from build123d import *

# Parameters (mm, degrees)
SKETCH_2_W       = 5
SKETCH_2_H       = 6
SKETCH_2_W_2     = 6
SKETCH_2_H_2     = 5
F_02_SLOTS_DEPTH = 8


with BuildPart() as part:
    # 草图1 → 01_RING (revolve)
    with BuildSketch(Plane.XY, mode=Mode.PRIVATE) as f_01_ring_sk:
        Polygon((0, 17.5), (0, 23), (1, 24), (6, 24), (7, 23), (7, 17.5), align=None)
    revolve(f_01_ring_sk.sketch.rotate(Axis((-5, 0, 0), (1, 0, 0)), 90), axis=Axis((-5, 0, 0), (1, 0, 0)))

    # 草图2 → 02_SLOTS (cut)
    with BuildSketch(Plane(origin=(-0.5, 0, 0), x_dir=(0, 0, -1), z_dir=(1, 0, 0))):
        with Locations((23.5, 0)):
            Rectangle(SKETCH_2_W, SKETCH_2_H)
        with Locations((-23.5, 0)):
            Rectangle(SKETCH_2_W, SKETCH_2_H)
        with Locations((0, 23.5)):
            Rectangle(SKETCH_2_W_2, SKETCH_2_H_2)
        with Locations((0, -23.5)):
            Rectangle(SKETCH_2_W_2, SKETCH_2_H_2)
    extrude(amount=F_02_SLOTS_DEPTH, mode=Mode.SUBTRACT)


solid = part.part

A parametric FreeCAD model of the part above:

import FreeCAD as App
import Part
import Sketcher

doc = App.newDocument("Part")
body = doc.addObject("PartDesign::Body", "Body")

# Sketch on XY plane
sketch1 = doc.addObject("Sketcher::SketchObject", "Sketch")
body.addObject(sketch1)
sketch1.AttachmentSupport = (doc.XY_Plane, [""])
sketch1.MapMode = "FlatFace"
sketch1.addGeometry(Part.LineSegment(App.Vector(0, 23, 0), App.Vector(0, 17.5, 0)), False)
sketch1.addGeometry(Part.LineSegment(App.Vector(0, 17.5, 0), App.Vector(7, 17.5, 0)), False)
sketch1.addGeometry(Part.LineSegment(App.Vector(7, 17.5, 0), App.Vector(7, 23, 0)), False)
sketch1.addGeometry(Part.LineSegment(App.Vector(7, 23, 0), App.Vector(6, 24, 0)), False)
sketch1.addGeometry(Part.LineSegment(App.Vector(6, 24, 0), App.Vector(1, 24, 0)), False)
sketch1.addGeometry(Part.LineSegment(App.Vector(1, 24, 0), App.Vector(0, 23, 0)), False)
sketch1.addConstraint(Sketcher.Constraint("Coincident", 0, 2, 1, 1))
sketch1.addConstraint(Sketcher.Constraint("Coincident", 1, 2, 2, 1))
sketch1.addConstraint(Sketcher.Constraint("Coincident", 2, 2, 3, 1))
sketch1.addConstraint(Sketcher.Constraint("Coincident", 3, 2, 4, 1))
sketch1.addConstraint(Sketcher.Constraint("Coincident", 4, 2, 5, 1))
sketch1.addConstraint(Sketcher.Constraint("Coincident", 5, 2, 0, 1))
sketch1.addConstraint(Sketcher.Constraint("Vertical", 0))
sketch1.addConstraint(Sketcher.Constraint("Horizontal", 1))
sketch1.addConstraint(Sketcher.Constraint("Vertical", 2))
sketch1.addConstraint(Sketcher.Constraint("Horizontal", 4))
sketch1.addConstraint(Sketcher.Constraint("PointOnObject", 0, 2, -2))
sketch1.addConstraint(Sketcher.Constraint("Perpendicular", 3, 5))
sketch1.addConstraint(Sketcher.Constraint("Horizontal", 2, 2, 5, 2))
sketch1.addConstraint(Sketcher.Constraint("Equal", 3, 5))
sketch1.addConstraint(Sketcher.Constraint("DistanceX", 1, 1, 1, 2, 7.0))
sketch1.addConstraint(Sketcher.Constraint("DistanceX", 4, 2, 4, 1, 5.0))
sketch1.addConstraint(Sketcher.Constraint("DistanceY", 0, 2, 0, 1, 5.5))
sketch1.addConstraint(Sketcher.Constraint("DistanceY", -1, 1, 2, 2, 23.0))
revolution = doc.addObject("PartDesign::Revolution", "Revolution")
body.addObject(revolution)
revolution.Profile = sketch1
revolution.ReferenceAxis = (sketch1, ["H_Axis"])
revolution.Angle = 360

# Sketch on YZ plane
sketch2 = doc.addObject("Sketcher::SketchObject", "Sketch001")
body.addObject(sketch2)
sketch2.AttachmentSupport = (doc.YZ_Plane, [""])
sketch2.MapMode = "FlatFace"
sketch2.AttachmentOffset = App.Placement(App.Vector(0, 0, -0.5), App.Rotation())
sketch2.addGeometry(Part.LineSegment(App.Vector(3, -21, 0), App.Vector(-3, -21, 0)), False)
sketch2.addGeometry(Part.LineSegment(App.Vector(-3, -21, 0), App.Vector(-3, -26, 0)), False)
sketch2.addGeometry(Part.LineSegment(App.Vector(-3, -26, 0), App.Vector(3, -26, 0)), False)
sketch2.addGeometry(Part.LineSegment(App.Vector(3, -26, 0), App.Vector(3, -21, 0)), False)
sketch2.addGeometry(Part.LineSegment(App.Vector(3, 26, 0), App.Vector(-3, 26, 0)), False)
sketch2.addGeometry(Part.LineSegment(App.Vector(-3, 26, 0), App.Vector(-3, 21, 0)), False)
sketch2.addGeometry(Part.LineSegment(App.Vector(-3, 21, 0), App.Vector(3, 21, 0)), False)
sketch2.addGeometry(Part.LineSegment(App.Vector(3, 21, 0), App.Vector(3, 26, 0)), False)
sketch2.addGeometry(Part.LineSegment(App.Vector(26, 3, 0), App.Vector(21, 3, 0)), False)
sketch2.addGeometry(Part.LineSegment(App.Vector(21, 3, 0), App.Vector(21, -3, 0)), False)
sketch2.addGeometry(Part.LineSegment(App.Vector(21, -3, 0), App.Vector(26, -3, 0)), False)
sketch2.addGeometry(Part.LineSegment(App.Vector(26, -3, 0), App.Vector(26, 3, 0)), False)
sketch2.addGeometry(Part.LineSegment(App.Vector(-21, 3, 0), App.Vector(-26, 3, 0)), False)
sketch2.addGeometry(Part.LineSegment(App.Vector(-26, 3, 0), App.Vector(-26, -3, 0)), False)
sketch2.addGeometry(Part.LineSegment(App.Vector(-26, -3, 0), App.Vector(-21, -3, 0)), False)
sketch2.addGeometry(Part.LineSegment(App.Vector(-21, -3, 0), App.Vector(-21, 3, 0)), False)
sketch2.addConstraint(Sketcher.Constraint("Coincident", 0, 2, 1, 1))
sketch2.addConstraint(Sketcher.Constraint("Coincident", 1, 2, 2, 1))
sketch2.addConstraint(Sketcher.Constraint("Coincident", 2, 2, 3, 1))
sketch2.addConstraint(Sketcher.Constraint("Coincident", 3, 2, 0, 1))
sketch2.addConstraint(Sketcher.Constraint("Coincident", 4, 2, 5, 1))
sketch2.addConstraint(Sketcher.Constraint("Coincident", 5, 2, 6, 1))
sketch2.addConstraint(Sketcher.Constraint("Coincident", 6, 2, 7, 1))
sketch2.addConstraint(Sketcher.Constraint("Coincident", 7, 2, 4, 1))
sketch2.addConstraint(Sketcher.Constraint("Coincident", 8, 2, 9, 1))
sketch2.addConstraint(Sketcher.Constraint("Coincident", 9, 2, 10, 1))
sketch2.addConstraint(Sketcher.Constraint("Coincident", 10, 2, 11, 1))
sketch2.addConstraint(Sketcher.Constraint("Coincident", 11, 2, 8, 1))
sketch2.addConstraint(Sketcher.Constraint("Coincident", 12, 2, 13, 1))
sketch2.addConstraint(Sketcher.Constraint("Coincident", 13, 2, 14, 1))
sketch2.addConstraint(Sketcher.Constraint("Coincident", 14, 2, 15, 1))
sketch2.addConstraint(Sketcher.Constraint("Coincident", 15, 2, 12, 1))
sketch2.addConstraint(Sketcher.Constraint("Horizontal", 0))
sketch2.addConstraint(Sketcher.Constraint("Vertical", 1))
sketch2.addConstraint(Sketcher.Constraint("Horizontal", 2))
sketch2.addConstraint(Sketcher.Constraint("Vertical", 3))
sketch2.addConstraint(Sketcher.Constraint("Horizontal", 4))
sketch2.addConstraint(Sketcher.Constraint("Vertical", 5))
sketch2.addConstraint(Sketcher.Constraint("Horizontal", 6))
sketch2.addConstraint(Sketcher.Constraint("Vertical", 7))
sketch2.addConstraint(Sketcher.Constraint("Horizontal", 8))
sketch2.addConstraint(Sketcher.Constraint("Vertical", 9))
sketch2.addConstraint(Sketcher.Constraint("Horizontal", 10))
sketch2.addConstraint(Sketcher.Constraint("Vertical", 11))
sketch2.addConstraint(Sketcher.Constraint("Horizontal", 12))
sketch2.addConstraint(Sketcher.Constraint("Vertical", 13))
sketch2.addConstraint(Sketcher.Constraint("Horizontal", 14))
sketch2.addConstraint(Sketcher.Constraint("Vertical", 15))
sketch2.addConstraint(Sketcher.Constraint("Symmetric", 2, 2, 4, 2, -1, 1))
sketch2.addConstraint(Sketcher.Constraint("Symmetric", 0, 2, 6, 2, -1, 1))
sketch2.addConstraint(Sketcher.Constraint("Symmetric", 10, 2, 12, 2, -1, 1))
sketch2.addConstraint(Sketcher.Constraint("Symmetric", 8, 2, 14, 2, -1, 1))
sketch2.addConstraint(Sketcher.Constraint("Horizontal", 11, 2, 12, 2))
sketch2.addConstraint(Sketcher.Constraint("Vertical", 1, 2, 4, 2))
sketch2.addConstraint(Sketcher.Constraint("Equal", 14, 1))
sketch2.addConstraint(Sketcher.Constraint("Equal", 6, 9))
sketch2.addConstraint(Sketcher.Constraint("DistanceX", 0, 2, 0, 1, 6.0))
sketch2.addConstraint(Sketcher.Constraint("DistanceX", 8, 2, 8, 1, 5.0))
sketch2.addConstraint(Sketcher.Constraint("DistanceY", 0, 2, -1, 1, 21.0))
sketch2.addConstraint(Sketcher.Constraint("DistanceX", -1, 1, 8, 2, 21.0))
pocket1 = doc.addObject("PartDesign::Pocket", "Pocket")
body.addObject(pocket1)
pocket1.Profile = sketch2
pocket1.Length = 8
pocket1.Reversed = True

doc.recompute()
